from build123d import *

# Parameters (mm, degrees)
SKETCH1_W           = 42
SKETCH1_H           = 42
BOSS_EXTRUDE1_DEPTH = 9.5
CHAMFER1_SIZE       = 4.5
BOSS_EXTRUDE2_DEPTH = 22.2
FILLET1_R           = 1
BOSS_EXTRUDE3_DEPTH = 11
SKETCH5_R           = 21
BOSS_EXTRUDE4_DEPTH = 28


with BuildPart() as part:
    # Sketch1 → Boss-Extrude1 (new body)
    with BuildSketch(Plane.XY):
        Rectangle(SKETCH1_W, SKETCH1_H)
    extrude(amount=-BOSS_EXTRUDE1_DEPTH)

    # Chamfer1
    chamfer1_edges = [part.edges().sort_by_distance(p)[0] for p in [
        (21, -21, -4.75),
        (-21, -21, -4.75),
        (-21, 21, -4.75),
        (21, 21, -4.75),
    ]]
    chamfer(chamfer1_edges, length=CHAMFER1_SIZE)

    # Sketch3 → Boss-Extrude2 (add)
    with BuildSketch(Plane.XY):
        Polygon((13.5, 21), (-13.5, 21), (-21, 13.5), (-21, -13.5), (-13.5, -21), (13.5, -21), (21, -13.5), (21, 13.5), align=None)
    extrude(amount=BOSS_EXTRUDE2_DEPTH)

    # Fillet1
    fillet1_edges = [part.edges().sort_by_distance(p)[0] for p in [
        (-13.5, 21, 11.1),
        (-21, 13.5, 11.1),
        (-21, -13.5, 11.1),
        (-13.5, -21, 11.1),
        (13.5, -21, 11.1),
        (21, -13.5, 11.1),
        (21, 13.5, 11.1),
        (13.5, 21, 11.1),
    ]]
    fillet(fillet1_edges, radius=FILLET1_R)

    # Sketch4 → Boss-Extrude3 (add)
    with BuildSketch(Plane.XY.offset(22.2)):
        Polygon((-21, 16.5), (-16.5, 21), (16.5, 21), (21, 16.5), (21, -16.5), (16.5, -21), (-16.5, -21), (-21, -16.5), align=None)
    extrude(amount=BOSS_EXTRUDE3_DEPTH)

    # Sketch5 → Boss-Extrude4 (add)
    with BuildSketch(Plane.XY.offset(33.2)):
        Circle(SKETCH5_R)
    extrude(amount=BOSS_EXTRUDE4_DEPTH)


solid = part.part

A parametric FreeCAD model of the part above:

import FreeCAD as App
import Part
import Sketcher
from FreeCAD import Vector
Q = App.Units.Quantity


def edges_at(feature, points):
    """Names of the edges that pass closest to the given points."""
    edges = feature.Shape.Edges
    near = lambda p: min(range(len(edges)), key=lambda i: edges[i].distToShape(Part.Vertex(*p))[0])
    return sorted({f"Edge{near(p) + 1}" for p in points})


def add_polygon(sketch, points):
    """Adds a closed chain of lines whose ends are joined by coincident constraints."""
    first, n = sketch.GeometryCount, len(points)
    for a, b in zip(points, points[1:] + points[:1]):
        sketch.addGeometry(Part.LineSegment(App.Vector(*a, 0), App.Vector(*b, 0)), False)
    for i in range(n):
        sketch.addConstraint(Sketcher.Constraint("Coincident", first + i, 2, first + (i + 1) % n, 1))

doc = App.newDocument("Part")
params = doc.addObject("Spreadsheet::Sheet", "Params")
for row, (alias, value) in enumerate([
    ("sketch1_width", "42 mm"),
    ("pad1_length", "9.5 mm"),
    ("chamfer_size", "4.5 mm"),
    ("sketch2_width", "27 mm"),
    ("pad2_length", "22.2 mm"),
    ("fillet_radius", "1 mm"),
    ("sketch3_width", "33 mm"),
    ("pad3_length", "11 mm"),
    ("sketch4_diameter", "42 mm"),
    ("pad4_length", "28 mm"),
], start=1):
    params.set(f"A{row}", alias)
    params.set(f"B{row}", "=" + value)
    params.setAlias(f"B{row}", alias)

body = doc.addObject("PartDesign::Body", "Body")

# Sketch on XY plane
sketch1 = body.newObject("Sketcher::SketchObject", "Sketch")
sketch1.AttachmentSupport = (doc.getObject("XY_Plane"), [""])
sketch1.MapMode = "FlatFace"
add_polygon(sketch1, [(-21, 21), (-21, -21), (21, -21), (21, 21)])  # lines 0-3
sketch1.addConstraint([
    Sketcher.Constraint("Vertical", 0),
    Sketcher.Constraint("Horizontal", 1),
    Sketcher.Constraint("Vertical", 2),
    Sketcher.Constraint("Horizontal", 3),
    Sketcher.Constraint("Symmetric", 0, 2, 2, 2, -1, 1),
    Sketcher.Constraint("Equal", 3, 0),
    Sketcher.Constraint("DistanceX", 1, 1, 1, 2, Q("42 mm")),
])
sketch1.setExpression("Constraints[10]", "Params.sketch1_width")
pad1 = body.newObject("PartDesign::Pad", "Pad")
pad1.Profile = sketch1
pad1.setExpression("Length", "Params.pad1_length")
pad1.Reversed = True
doc.recompute()

chamfer = body.newObject("PartDesign::Chamfer", "Chamfer")
chamfer.Base = (pad1, edges_at(pad1, [
    (21, -21, -4.75),
    (-21, -21, -4.75),
    (-21, 21, -4.75),
    (21, 21, -4.75),
]))
chamfer.setExpression("Size", "Params.chamfer_size")

# Sketch on XY plane
sketch2 = body.newObject("Sketcher::SketchObject", "Sketch001")
sketch2.AttachmentSupport = (doc.getObject("XY_Plane"), [""])
sketch2.MapMode = "FlatFace"
add_polygon(sketch2, [(13.5, 21), (-13.5, 21), (-21, 13.5), (-21, -13.5), (-13.5, -21), (13.5, -21), (21, -13.5), (21, 13.5)])  # lines 0-7
sketch2.addConstraint([
    Sketcher.Constraint("Horizontal", 0),
    Sketcher.Constraint("Vertical", 2),
    Sketcher.Constraint("Horizontal", 4),
    Sketcher.Constraint("Vertical", 6),
    Sketcher.Constraint("Symmetric", 0, 2, 4, 2, -1, 1),
    Sketcher.Constraint("Symmetric", 1, 2, 5, 2, -1, 1),
    Sketcher.Constraint("Perpendicular", 1, 3),
    Sketcher.Constraint("Perpendicular", 5, 7),
    Sketcher.Constraint("Horizontal", 2, 2, 5, 2),
    Sketcher.Constraint("Horizontal", 1, 2, 6, 2),
    Sketcher.Constraint("Vertical", 0, 2, 3, 2),
    Sketcher.Constraint("Equal", 4, 2),
    Sketcher.Constraint("DistanceX", 0, 2, 0, 1, Q("27 mm")),
    Sketcher.Constraint("DistanceY", -1, 1, 0, 2, Q("21 mm")),
])
sketch2.setExpression("Constraints[20]", "Params.sketch2_width")
pad2 = body.newObject("PartDesign::Pad", "Pad001")
pad2.Profile = sketch2
pad2.setExpression("Length", "Params.pad2_length")
doc.recompute()

fillet = body.newObject("PartDesign::Fillet", "Fillet")
fillet.Base = (pad2, edges_at(pad2, [
    (-13.5, 21, 11.1),
    (-21, 13.5, 11.1),
    (-21, -13.5, 11.1),
    (-13.5, -21, 11.1),
    (13.5, -21, 11.1),
    (21, -13.5, 11.1),
    (21, 13.5, 11.1),
    (13.5, 21, 11.1),
]))
fillet.setExpression("Radius", "Params.fillet_radius")

# Sketch on XY plane
sketch3 = body.newObject("Sketcher::SketchObject", "Sketch002")
sketch3.AttachmentSupport = (doc.getObject("XY_Plane"), [""])
sketch3.MapMode = "FlatFace"
sketch3.AttachmentOffset = App.Placement(Vector(0, 0, 22.2), App.Rotation())
add_polygon(sketch3, [(-16.5, 21), (-21, 16.5), (-21, -16.5), (-16.5, -21), (16.5, -21), (21, -16.5), (21, 16.5), (16.5, 21)])  # lines 0-7
sketch3.addConstraint([
    Sketcher.Constraint("Vertical", 1),
    Sketcher.Constraint("Horizontal", 3),
    Sketcher.Constraint("Vertical", 5),
    Sketcher.Constraint("Horizontal", 7),
    Sketcher.Constraint("Symmetric", 0, 2, 4, 2, -1, 1),
    Sketcher.Constraint("Symmetric", 2, 2, 6, 2, -1, 1),
    Sketcher.Constraint("Perpendicular", 0, 2),
    Sketcher.Constraint("Perpendicular", 2, 4),
    Sketcher.Constraint("Perpendicular", 4, 6),
    Sketcher.Constraint("Horizontal", 1, 2, 4, 2),
    Sketcher.Constraint("Vertical", 3, 2, 6, 2),
    Sketcher.Constraint("Equal", 7, 1),
    Sketcher.Constraint("DistanceX", 3, 1, 3, 2, Q("33 mm")),
    Sketcher.Constraint("DistanceX", 0, 2, -1, 1, Q("21 mm")),
])
sketch3.setExpression("Constraints[20]", "Params.sketch3_width")
pad3 = body.newObject("PartDesign::Pad", "Pad002")
pad3.Profile = sketch3
pad3.setExpression("Length", "Params.pad3_length")

# Sketch on XY plane
sketch4 = body.newObject("Sketcher::SketchObject", "Sketch003")
sketch4.AttachmentSupport = (doc.getObject("XY_Plane"), [""])
sketch4.MapMode = "FlatFace"
sketch4.AttachmentOffset = App.Placement(Vector(0, 0, 33.2), App.Rotation())
sketch4.addGeometry(Part.Circle(Vector(0, 0, 0), Vector(0, 0, 1), 21), False)
sketch4.addConstraint([
    Sketcher.Constraint("Coincident", 0, 3, -1, 1),
    Sketcher.Constraint("Diameter", 0, Q("42 mm")),
])
sketch4.setExpression("Constraints[1]", "Params.sketch4_diameter")
pad4 = body.newObject("PartDesign::Pad", "Pad003")
pad4.Profile = sketch4
pad4.setExpression("Length", "Params.pad4_length")

doc.recompute()
